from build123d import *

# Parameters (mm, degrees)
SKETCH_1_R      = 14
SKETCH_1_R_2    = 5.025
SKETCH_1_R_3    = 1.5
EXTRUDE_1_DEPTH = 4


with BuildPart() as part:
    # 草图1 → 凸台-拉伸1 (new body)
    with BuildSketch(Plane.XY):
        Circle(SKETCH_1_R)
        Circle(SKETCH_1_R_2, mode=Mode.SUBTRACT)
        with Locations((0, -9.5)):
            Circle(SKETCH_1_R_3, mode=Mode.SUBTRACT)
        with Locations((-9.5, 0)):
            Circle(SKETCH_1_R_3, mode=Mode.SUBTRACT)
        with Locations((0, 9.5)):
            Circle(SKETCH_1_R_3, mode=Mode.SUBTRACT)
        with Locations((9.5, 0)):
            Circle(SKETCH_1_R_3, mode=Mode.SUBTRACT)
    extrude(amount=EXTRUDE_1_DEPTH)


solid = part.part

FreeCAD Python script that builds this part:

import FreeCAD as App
import Part
import Sketcher
from FreeCAD import Vector

doc = App.newDocument("Part")
body = doc.addObject("PartDesign::Body", "Body")

sketch1 = doc.addObject("Sketcher::SketchObject", "Sketch")
body.addObject(sketch1)
sketch1.AttachmentSupport = (doc.XY_Plane, [""])
sketch1.MapMode = "FlatFace"
sketch1.addGeometry(Part.Circle(Vector(0, 0, 0), Vector(0, 0, 1), 14), False)
sketch1.addGeometry(Part.Circle(Vector(0, -9.5, 0), Vector(0, 0, 1), 1.5), False)
sketch1.addGeometry(Part.Circle(Vector(-9.5, 0, 0), Vector(0, 0, 1), 1.5), False)
sketch1.addGeometry(Part.Circle(Vector(0, 0, 0), Vector(0, 0, 1), 5.025), False)
sketch1.addGeometry(Part.Circle(Vector(9.5, 0, 0), Vector(0, 0, 1), 1.5), False)
sketch1.addGeometry(Part.Circle(Vector(0, 9.5, 0), Vector(0, 0, 1), 1.5), False)
sketch1.addConstraint(Sketcher.Constraint("Coincident", 0, 3, -1, 1))
sketch1.addConstraint(Sketcher.Constraint("Coincident", 3, 3, -1, 1))
sketch1.addConstraint(Sketcher.Constraint("Equal", 1, 2))
sketch1.addConstraint(Sketcher.Constraint("Equal", 2, 4))
sketch1.addConstraint(Sketcher.Constraint("Equal", 4, 5))
sketch1.addConstraint(Sketcher.Constraint("Symmetric", 2, 3, 4, 3, -1, 1))
sketch1.addConstraint(Sketcher.Constraint("Symmetric", 1, 3, 5, 3, -1, 1))
sketch1.addConstraint(Sketcher.Constraint("PointOnObject", 1, 3, -2))
sketch1.addConstraint(Sketcher.Constraint("PointOnObject", 2, 3, -1))
sketch1.addConstraint(Sketcher.Constraint("Diameter", 0, 28.0))
sketch1.addConstraint(Sketcher.Constraint("Diameter", 1, 3.0))
sketch1.addConstraint(Sketcher.Constraint("Diameter", 3, 10.05))
sketch1.addConstraint(Sketcher.Constraint("DistanceX", 2, 3, 4, 3, 19.0))
sketch1.addConstraint(Sketcher.Constraint("DistanceY", 1, 3, 5, 3, 19.0))
pad1 = doc.addObject("PartDesign::Pad", "Pad")
body.addObject(pad1)
pad1.Profile = sketch1
pad1.Length = 4

doc.recompute()
